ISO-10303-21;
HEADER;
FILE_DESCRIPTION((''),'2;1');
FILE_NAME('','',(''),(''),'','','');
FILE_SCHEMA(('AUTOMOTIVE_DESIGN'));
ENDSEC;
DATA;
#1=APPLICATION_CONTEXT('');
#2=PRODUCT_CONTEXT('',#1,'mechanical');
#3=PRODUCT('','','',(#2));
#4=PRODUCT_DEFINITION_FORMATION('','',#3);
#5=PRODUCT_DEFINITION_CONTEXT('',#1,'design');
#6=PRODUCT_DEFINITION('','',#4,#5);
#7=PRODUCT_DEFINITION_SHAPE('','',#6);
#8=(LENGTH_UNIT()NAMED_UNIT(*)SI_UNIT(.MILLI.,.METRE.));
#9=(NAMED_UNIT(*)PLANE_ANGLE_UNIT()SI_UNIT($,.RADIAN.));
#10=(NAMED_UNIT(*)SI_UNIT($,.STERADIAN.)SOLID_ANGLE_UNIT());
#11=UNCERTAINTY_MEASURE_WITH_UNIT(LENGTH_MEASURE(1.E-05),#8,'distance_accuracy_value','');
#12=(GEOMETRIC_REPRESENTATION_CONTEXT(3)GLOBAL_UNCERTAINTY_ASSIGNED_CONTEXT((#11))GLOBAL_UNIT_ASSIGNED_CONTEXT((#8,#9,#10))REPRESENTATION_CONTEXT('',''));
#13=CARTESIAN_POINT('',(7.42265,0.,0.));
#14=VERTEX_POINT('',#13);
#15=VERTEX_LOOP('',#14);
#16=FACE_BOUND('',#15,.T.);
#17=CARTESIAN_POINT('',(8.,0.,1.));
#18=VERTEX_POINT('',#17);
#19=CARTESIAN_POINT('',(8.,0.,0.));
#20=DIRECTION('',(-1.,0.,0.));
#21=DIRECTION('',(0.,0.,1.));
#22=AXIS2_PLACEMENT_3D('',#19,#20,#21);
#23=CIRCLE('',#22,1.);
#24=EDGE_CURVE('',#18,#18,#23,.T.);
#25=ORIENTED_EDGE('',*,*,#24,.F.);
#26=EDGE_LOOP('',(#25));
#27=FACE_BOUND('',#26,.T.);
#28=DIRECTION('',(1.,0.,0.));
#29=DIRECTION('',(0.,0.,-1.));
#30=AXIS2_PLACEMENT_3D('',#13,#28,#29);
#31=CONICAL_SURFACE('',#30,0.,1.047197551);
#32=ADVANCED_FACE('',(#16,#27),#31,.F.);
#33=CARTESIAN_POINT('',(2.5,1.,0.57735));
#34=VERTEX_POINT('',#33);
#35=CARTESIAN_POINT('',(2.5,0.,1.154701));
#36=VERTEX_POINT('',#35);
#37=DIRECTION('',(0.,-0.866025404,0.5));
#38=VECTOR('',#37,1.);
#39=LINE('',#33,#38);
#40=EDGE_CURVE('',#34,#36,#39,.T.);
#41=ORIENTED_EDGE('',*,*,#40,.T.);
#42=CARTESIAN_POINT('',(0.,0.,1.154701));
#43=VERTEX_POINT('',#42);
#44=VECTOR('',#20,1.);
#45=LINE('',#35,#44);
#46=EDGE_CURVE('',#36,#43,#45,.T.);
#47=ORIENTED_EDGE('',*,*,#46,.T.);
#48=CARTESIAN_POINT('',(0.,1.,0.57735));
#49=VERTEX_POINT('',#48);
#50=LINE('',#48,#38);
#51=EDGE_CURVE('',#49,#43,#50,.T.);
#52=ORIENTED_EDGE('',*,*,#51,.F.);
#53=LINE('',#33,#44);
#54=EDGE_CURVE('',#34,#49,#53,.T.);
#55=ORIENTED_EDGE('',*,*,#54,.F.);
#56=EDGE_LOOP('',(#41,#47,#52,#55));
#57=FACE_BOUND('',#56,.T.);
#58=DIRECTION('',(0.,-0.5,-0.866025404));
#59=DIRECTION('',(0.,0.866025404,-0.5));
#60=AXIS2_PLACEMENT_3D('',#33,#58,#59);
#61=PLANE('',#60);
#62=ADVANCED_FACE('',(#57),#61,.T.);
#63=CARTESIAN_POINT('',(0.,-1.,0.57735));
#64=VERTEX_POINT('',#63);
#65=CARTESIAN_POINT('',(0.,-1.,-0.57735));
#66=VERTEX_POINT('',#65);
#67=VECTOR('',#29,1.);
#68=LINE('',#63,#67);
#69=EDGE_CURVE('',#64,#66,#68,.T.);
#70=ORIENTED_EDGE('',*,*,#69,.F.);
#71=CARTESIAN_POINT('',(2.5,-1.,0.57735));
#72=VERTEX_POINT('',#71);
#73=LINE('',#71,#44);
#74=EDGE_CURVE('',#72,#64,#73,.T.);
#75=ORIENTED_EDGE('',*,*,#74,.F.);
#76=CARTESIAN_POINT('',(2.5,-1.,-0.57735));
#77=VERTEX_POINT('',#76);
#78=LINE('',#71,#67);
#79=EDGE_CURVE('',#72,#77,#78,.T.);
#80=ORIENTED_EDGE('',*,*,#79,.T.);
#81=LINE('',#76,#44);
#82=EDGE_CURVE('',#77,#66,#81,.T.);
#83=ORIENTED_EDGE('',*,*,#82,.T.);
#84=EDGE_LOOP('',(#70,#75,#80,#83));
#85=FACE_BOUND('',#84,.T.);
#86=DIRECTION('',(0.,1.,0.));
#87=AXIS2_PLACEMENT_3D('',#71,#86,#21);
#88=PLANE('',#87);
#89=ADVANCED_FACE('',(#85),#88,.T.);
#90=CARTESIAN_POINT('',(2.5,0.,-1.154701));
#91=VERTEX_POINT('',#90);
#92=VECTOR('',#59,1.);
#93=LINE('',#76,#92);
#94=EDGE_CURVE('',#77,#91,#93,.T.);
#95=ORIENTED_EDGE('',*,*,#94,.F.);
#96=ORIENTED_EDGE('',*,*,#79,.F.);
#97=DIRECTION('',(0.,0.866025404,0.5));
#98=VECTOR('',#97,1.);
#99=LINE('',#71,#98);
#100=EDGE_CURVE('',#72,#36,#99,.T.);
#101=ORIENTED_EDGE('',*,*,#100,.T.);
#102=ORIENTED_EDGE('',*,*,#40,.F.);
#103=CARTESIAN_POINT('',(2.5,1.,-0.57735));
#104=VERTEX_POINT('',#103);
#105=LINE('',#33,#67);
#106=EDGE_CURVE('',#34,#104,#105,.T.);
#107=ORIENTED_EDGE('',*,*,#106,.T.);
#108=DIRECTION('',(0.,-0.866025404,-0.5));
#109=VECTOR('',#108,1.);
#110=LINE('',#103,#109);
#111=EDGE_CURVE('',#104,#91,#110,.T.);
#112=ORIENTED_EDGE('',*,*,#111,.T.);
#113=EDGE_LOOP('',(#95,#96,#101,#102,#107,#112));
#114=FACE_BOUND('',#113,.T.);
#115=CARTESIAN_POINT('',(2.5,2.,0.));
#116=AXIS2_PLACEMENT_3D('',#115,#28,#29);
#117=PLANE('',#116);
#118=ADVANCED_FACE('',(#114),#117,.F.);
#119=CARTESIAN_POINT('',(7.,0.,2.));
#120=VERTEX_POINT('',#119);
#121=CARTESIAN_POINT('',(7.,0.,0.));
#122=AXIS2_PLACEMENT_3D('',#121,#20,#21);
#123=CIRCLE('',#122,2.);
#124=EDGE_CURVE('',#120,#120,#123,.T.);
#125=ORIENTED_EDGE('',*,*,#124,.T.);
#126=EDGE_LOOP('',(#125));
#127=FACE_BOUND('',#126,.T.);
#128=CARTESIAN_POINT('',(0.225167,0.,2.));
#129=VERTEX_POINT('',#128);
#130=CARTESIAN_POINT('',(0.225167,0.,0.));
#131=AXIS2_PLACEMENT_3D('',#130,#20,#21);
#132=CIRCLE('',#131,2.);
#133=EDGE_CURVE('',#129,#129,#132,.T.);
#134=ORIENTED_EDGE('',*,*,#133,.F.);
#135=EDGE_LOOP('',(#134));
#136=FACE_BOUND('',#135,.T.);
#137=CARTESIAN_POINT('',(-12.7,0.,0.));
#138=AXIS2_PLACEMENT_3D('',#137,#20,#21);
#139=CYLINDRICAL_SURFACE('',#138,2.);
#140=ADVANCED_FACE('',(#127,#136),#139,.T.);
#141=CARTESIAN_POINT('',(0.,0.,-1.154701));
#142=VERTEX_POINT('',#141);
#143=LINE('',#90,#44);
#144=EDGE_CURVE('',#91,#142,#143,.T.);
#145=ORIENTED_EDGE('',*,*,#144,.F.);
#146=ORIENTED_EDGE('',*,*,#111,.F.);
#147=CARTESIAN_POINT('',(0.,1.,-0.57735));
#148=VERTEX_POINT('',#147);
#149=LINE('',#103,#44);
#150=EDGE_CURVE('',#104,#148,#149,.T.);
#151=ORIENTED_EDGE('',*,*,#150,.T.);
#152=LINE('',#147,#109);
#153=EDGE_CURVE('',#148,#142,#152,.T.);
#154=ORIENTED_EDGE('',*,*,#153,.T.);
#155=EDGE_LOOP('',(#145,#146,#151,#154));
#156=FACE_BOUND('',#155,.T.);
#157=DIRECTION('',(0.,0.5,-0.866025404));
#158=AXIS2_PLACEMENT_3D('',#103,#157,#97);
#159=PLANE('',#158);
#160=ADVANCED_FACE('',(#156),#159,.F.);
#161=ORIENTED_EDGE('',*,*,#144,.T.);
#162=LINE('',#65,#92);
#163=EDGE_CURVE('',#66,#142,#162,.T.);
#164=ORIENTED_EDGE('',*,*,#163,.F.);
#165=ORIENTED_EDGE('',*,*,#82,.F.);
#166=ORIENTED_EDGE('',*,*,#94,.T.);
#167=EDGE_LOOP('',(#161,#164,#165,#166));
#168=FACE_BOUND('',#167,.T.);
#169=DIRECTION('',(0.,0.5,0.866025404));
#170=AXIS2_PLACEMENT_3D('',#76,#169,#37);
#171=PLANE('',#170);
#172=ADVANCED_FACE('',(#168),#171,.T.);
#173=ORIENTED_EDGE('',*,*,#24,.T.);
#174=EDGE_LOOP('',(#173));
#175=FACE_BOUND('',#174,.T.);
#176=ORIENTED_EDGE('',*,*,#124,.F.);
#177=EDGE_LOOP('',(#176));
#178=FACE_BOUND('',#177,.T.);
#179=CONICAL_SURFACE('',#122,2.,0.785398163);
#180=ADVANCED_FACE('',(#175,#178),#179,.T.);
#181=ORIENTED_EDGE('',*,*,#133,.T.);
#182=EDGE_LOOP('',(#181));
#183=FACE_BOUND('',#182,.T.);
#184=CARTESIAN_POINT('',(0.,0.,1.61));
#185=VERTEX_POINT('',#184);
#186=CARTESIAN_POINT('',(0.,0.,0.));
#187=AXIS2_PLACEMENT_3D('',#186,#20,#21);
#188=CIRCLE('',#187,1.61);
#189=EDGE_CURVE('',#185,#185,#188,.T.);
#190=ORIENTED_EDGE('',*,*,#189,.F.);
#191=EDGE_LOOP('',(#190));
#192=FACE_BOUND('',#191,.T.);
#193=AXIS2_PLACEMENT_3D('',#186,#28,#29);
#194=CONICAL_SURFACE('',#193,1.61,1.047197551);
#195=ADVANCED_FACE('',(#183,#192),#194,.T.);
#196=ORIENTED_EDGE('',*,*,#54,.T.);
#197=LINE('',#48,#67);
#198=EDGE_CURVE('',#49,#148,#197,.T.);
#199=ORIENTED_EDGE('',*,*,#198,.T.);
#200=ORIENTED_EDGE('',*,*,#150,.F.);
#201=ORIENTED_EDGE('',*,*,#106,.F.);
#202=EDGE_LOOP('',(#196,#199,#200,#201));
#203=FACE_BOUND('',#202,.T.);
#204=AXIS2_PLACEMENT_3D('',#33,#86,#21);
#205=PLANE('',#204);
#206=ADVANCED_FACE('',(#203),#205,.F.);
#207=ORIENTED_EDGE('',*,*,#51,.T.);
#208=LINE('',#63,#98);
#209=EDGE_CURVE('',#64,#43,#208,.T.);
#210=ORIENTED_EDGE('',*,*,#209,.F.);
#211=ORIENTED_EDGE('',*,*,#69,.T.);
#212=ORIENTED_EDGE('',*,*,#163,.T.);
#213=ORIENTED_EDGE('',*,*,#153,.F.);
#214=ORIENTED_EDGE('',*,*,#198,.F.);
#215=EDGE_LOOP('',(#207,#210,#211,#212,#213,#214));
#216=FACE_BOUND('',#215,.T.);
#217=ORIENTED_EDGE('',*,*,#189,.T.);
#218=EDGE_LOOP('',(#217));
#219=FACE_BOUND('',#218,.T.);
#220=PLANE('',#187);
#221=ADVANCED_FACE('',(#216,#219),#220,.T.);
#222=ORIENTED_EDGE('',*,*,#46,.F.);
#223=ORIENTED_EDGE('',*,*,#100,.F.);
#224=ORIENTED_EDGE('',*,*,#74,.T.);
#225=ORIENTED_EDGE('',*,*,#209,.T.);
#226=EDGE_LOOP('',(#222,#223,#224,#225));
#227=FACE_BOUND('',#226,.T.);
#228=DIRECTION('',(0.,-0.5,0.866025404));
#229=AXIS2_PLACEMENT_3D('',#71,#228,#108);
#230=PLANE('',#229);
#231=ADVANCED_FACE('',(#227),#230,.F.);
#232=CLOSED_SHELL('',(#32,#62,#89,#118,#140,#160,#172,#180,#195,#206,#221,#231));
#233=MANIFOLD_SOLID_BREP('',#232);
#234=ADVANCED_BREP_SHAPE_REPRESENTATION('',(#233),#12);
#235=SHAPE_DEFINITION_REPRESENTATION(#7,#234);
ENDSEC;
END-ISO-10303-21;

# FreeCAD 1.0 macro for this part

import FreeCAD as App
import Part
import Sketcher

V = App.Vector
Q = App.Units.Quantity


def add_polygon(sketch, points):
    """Adds a closed chain of lines whose ends are joined by coincident constraints."""
    first, n = sketch.GeometryCount, len(points)
    for a, b in zip(points, points[1:] + points[:1]):
        sketch.addGeometry(Part.LineSegment(App.Vector(*a, 0), App.Vector(*b, 0)), False)
    for i in range(n):
        sketch.addConstraint(Sketcher.Constraint("Coincident", first + i, 2, first + (i + 1) % n, 1))

doc = App.newDocument("Part")
body = doc.addObject("PartDesign::Body", "Body")

# Sketch on XY plane
sketch1 = body.newObject("Sketcher::SketchObject", "Sketch")
sketch1.AttachmentSupport = (doc.getObject("XY_Plane"), [""])
sketch1.MapMode = "FlatFace"
add_polygon(sketch1, [(0, 1.61), (0, 0), (7.42, 0), (8, 1), (7, 2), (0.23, 2)])  # lines 0-5
sketch1.addConstraint([
    Sketcher.Constraint("Vertical", 0),
    Sketcher.Constraint("Horizontal", 1),
    Sketcher.Constraint("Horizontal", 4),
    Sketcher.Constraint("Coincident", 0, 2, -1, 1),
    Sketcher.Constraint("Parallel", 2, 5),
    Sketcher.Constraint("Angle", 2, Q("60 deg")),
    Sketcher.Constraint("Angle", 3, Q("135 deg")),
    Sketcher.Constraint("DistanceX", -1, 1, 2, 2, 8.0),
    Sketcher.Constraint("DistanceY", -1, 1, 2, 2, 1.0),
    Sketcher.Constraint("DistanceX", -1, 1, 3, 2, 7.0),
    Sketcher.Constraint("DistanceY", 0, 2, 0, 1, 1.61),
])
revolution = body.newObject("PartDesign::Revolution", "Revolution")
revolution.Profile = sketch1
revolution.ReferenceAxis = (sketch1, ["H_Axis"])
revolution.Angle = 360

# Sketch on YZ plane
sketch2 = body.newObject("Sketcher::SketchObject", "Sketch001")
sketch2.AttachmentSupport = (doc.getObject("YZ_Plane"), [""])
sketch2.MapMode = "FlatFace"
add_polygon(sketch2, [(1, 0.6), (1, -0.6), (0, -1.2), (-1, -0.6), (-1, 0.6), (0, 1.2)])  # lines 0-5
sketch2.addConstraint([
    Sketcher.Constraint("Vertical", 0),
    Sketcher.Constraint("Vertical", 3),
    Sketcher.Constraint("Symmetric", 0, 2, 3, 2, -1, 1),
    Sketcher.Constraint("Symmetric", 1, 2, 4, 2, -1, 1),
    Sketcher.Constraint("PointOnObject", 1, 2, -2),
    Sketcher.Constraint("Parallel", 2, 5),
    Sketcher.Constraint("Horizontal", 0, 2, 2, 2),
    Sketcher.Constraint("Angle", 1, Q("-150 deg")),
    Sketcher.Constraint("DistanceX", -1, 1, 0, 2, 1.0),
    Sketcher.Constraint("DistanceY", 0, 2, 0, 1, 1.154701),
])
pocket1 = body.newObject("PartDesign::Pocket", "Pocket")
pocket1.Profile = sketch2
pocket1.Length = 2.5
pocket1.Reversed = True

doc.recompute()
